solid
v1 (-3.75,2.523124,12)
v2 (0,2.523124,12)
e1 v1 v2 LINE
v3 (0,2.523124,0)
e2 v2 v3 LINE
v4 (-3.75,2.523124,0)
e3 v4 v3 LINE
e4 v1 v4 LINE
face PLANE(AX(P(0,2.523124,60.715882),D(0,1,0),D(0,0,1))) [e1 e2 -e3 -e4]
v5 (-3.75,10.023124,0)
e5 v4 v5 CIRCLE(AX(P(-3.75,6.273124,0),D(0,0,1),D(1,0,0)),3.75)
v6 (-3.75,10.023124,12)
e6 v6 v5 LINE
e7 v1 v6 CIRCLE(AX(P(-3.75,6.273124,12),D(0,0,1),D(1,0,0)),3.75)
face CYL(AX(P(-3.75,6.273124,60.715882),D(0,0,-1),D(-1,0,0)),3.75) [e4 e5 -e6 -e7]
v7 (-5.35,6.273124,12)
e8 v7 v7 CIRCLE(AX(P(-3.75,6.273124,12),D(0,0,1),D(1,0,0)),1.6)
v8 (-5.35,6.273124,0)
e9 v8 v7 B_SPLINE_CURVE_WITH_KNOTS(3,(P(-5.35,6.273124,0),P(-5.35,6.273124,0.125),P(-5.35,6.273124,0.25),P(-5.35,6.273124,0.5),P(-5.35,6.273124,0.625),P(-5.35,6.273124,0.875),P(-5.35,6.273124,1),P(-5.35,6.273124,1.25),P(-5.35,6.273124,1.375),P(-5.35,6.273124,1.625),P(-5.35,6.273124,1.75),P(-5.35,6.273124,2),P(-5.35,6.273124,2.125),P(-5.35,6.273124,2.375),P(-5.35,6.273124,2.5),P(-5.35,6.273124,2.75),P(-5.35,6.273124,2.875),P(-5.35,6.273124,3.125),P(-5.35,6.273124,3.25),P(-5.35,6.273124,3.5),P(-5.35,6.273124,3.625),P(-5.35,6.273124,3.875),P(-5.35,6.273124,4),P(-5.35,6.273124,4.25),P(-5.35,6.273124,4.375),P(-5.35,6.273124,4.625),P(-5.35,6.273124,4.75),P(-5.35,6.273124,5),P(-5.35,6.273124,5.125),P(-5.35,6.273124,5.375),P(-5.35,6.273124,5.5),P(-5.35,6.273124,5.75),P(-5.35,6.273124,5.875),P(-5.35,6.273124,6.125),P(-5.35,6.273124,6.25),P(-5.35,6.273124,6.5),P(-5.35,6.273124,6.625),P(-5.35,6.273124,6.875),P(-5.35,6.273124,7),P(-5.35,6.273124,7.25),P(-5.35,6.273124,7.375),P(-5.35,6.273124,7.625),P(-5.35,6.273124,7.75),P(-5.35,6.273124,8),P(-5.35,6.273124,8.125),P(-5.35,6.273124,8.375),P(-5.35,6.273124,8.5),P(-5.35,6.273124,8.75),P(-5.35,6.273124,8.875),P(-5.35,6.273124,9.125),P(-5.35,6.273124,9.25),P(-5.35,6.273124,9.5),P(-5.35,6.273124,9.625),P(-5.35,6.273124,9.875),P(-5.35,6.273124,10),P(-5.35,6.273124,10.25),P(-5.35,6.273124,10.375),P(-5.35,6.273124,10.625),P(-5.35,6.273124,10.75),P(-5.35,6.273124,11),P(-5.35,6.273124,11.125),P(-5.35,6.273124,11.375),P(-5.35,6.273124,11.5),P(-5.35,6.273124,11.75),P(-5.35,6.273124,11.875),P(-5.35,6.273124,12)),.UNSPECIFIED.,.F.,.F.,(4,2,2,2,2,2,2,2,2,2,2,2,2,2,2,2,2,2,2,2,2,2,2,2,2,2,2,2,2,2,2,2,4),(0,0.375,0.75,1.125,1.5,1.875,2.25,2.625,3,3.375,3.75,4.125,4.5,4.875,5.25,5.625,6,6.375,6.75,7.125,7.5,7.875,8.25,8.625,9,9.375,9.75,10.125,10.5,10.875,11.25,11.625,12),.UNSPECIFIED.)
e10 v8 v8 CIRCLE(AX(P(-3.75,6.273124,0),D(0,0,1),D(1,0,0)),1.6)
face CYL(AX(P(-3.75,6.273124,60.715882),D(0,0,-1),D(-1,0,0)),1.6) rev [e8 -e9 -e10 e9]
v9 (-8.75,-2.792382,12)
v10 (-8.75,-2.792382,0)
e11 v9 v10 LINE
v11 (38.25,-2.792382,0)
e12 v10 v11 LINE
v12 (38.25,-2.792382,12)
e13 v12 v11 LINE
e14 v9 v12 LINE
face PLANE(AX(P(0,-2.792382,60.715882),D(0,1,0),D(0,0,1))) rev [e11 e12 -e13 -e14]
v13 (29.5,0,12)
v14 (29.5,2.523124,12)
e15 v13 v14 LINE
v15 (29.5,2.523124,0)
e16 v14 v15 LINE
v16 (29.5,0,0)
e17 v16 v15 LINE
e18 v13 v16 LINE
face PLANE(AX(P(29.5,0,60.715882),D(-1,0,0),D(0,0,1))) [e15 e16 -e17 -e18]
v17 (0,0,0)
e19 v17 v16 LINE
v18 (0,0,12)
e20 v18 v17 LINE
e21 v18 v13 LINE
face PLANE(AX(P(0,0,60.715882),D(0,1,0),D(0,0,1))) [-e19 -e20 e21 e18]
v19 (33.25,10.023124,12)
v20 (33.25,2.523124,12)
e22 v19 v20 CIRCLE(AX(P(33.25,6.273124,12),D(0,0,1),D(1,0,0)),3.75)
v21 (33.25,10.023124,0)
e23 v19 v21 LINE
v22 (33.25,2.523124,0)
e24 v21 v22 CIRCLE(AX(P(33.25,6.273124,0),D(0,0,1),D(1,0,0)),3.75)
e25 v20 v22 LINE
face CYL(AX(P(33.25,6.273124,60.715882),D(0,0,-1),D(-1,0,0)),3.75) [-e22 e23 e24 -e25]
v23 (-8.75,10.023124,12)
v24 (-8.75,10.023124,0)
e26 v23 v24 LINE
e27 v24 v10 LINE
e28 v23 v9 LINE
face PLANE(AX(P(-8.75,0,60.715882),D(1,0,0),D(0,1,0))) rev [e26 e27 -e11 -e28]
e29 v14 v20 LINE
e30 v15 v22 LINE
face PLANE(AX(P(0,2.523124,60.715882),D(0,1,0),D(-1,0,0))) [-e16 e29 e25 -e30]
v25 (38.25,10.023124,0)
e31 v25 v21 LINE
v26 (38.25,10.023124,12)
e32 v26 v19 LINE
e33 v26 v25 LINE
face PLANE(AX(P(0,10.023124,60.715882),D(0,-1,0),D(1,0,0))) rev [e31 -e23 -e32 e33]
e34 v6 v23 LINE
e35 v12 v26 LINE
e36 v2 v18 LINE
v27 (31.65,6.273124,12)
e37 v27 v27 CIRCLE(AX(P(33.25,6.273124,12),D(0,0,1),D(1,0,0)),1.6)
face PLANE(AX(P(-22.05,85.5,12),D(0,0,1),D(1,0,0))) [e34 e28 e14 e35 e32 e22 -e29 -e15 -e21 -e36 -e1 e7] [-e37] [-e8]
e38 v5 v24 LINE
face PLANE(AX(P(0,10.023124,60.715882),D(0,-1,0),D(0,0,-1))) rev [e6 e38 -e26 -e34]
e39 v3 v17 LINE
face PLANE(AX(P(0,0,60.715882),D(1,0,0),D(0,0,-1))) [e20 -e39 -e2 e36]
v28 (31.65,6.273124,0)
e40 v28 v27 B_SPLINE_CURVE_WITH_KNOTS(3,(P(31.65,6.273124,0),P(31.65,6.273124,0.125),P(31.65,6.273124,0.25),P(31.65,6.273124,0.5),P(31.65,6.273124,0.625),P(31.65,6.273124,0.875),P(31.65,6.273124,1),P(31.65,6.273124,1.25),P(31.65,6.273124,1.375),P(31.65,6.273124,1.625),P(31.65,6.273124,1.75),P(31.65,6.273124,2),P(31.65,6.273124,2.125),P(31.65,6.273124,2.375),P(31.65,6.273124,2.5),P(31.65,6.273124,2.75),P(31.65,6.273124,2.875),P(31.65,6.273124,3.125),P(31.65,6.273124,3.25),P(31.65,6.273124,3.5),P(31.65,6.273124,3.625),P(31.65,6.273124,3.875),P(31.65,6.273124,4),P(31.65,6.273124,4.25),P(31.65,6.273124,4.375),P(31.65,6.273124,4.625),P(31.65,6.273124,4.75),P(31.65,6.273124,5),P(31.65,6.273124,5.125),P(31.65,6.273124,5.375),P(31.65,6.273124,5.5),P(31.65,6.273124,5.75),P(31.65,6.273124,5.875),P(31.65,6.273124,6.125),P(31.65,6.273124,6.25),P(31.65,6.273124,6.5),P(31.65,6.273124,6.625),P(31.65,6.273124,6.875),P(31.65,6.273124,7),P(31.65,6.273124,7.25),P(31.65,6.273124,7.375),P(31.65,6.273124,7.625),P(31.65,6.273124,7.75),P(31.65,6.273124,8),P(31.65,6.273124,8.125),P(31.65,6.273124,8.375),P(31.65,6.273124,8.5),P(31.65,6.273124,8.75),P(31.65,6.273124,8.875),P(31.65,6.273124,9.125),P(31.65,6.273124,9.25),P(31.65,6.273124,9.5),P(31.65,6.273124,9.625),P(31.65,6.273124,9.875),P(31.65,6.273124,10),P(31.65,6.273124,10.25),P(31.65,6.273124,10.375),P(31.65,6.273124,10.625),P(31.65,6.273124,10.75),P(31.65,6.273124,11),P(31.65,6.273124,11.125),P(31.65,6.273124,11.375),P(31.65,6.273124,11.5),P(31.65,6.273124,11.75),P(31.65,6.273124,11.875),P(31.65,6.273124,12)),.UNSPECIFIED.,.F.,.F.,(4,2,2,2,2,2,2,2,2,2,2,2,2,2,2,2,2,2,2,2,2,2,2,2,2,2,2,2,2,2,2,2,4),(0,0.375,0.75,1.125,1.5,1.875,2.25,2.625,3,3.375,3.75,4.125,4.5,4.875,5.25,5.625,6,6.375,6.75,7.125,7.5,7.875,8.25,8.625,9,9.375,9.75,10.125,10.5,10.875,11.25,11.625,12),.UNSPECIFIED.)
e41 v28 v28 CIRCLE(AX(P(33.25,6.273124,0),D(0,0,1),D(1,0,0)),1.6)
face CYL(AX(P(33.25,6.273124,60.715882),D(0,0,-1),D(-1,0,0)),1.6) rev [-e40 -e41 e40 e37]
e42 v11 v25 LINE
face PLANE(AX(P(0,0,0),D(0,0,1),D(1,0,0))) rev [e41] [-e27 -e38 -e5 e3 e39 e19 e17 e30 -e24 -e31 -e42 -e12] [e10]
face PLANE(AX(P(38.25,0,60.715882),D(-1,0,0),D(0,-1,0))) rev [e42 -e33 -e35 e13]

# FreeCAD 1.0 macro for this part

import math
import FreeCAD as App
import Part
import Sketcher
from FreeCAD import Vector

doc = App.newDocument("Part")
params = doc.addObject("Spreadsheet::Sheet", "Params")
for row, (alias, value) in enumerate([
    ("sketch1_diameter", "3.2 mm"),
    ("sketch1_width", "5 mm"),
    ("sketch1_width2", "47 mm"),
    ("sketch1_radius", "3.75 mm"),
    ("sketch1_width3", "29.5 mm"),
    ("pad1_length", "12 mm"),
], start=1):
    params.set(f"A{row}", alias)
    params.set(f"B{row}", "=" + value)
    params.setAlias(f"B{row}", alias)

body = doc.addObject("PartDesign::Body", "Body")

sketch1 = doc.addObject("Sketcher::SketchObject", "Sketch")
body.addObject(sketch1)
sketch1.AttachmentSupport = (doc.XY_Plane, [""])
sketch1.MapMode = "FlatFace"
sketch1.addGeometry([
    Part.ArcOfCircle(Part.Circle(Vector(-3.8, 6.3, 0), Vector(0, 0, 1), 3.8), math.radians(-90), math.radians(90)),
    Part.LineSegment(Vector(-3.8, 10, 0), Vector(-8.8, 10, 0)),
    Part.LineSegment(Vector(-8.8, 10, 0), Vector(-8.8, -2.8, 0)),
    Part.LineSegment(Vector(-8.8, -2.8, 0), Vector(38.2, -2.8, 0)),
    Part.LineSegment(Vector(38.2, -2.8, 0), Vector(38.2, 10, 0)),
    Part.LineSegment(Vector(38.2, 10, 0), Vector(33.2, 10, 0)),
    Part.ArcOfCircle(Part.Circle(Vector(33.2, 6.3, 0), Vector(0, 0, 1), 3.8), math.radians(90), math.radians(270)),
    Part.LineSegment(Vector(33.2, 2.5, 0), Vector(29.5, 2.5, 0)),
    Part.LineSegment(Vector(29.5, 2.5, 0), Vector(29.5, 0, 0)),
    Part.LineSegment(Vector(29.5, 0, 0), Vector(0, 0, 0)),
    Part.LineSegment(Vector(0, 0, 0), Vector(0, 2.5, 0)),
    Part.LineSegment(Vector(0, 2.5, 0), Vector(-3.8, 2.5, 0)),
    Part.Circle(Vector(-3.8, 6.3, 0), Vector(0, 0, 1), 1.6),
    Part.Circle(Vector(33.2, 6.3, 0), Vector(0, 0, 1), 1.6),
], False)
sketch1.addConstraint([
    Sketcher.Constraint("Tangent", 0, 2, 1, 1),
    Sketcher.Constraint("Coincident", 1, 2, 2, 1),
    Sketcher.Constraint("Coincident", 2, 2, 3, 1),
    Sketcher.Constraint("Coincident", 3, 2, 4, 1),
    Sketcher.Constraint("Coincident", 4, 2, 5, 1),
    Sketcher.Constraint("Tangent", 5, 2, 6, 1),
    Sketcher.Constraint("Tangent", 6, 2, 7, 1),
    Sketcher.Constraint("Coincident", 7, 2, 8, 1),
    Sketcher.Constraint("Coincident", 8, 2, 9, 1),
    Sketcher.Constraint("Coincident", 9, 2, 10, 1),
    Sketcher.Constraint("Coincident", 10, 2, 11, 1),
    Sketcher.Constraint("Tangent", 11, 2, 0, 1),
    Sketcher.Constraint("Horizontal", 1),
    Sketcher.Constraint("Vertical", 2),
    Sketcher.Constraint("Horizontal", 3),
    Sketcher.Constraint("Vertical", 4),
    Sketcher.Constraint("Horizontal", 5),
    Sketcher.Constraint("Horizontal", 7),
    Sketcher.Constraint("Vertical", 8),
    Sketcher.Constraint("Horizontal", 9),
    Sketcher.Constraint("Vertical", 10),
    Sketcher.Constraint("Horizontal", 11),
    Sketcher.Constraint("Coincident", 9, 2, -1, 1),
    Sketcher.Constraint("Coincident", 12, 3, 0, 3),
    Sketcher.Constraint("Coincident", 13, 3, 6, 3),
    Sketcher.Constraint("Equal", 0, 6),
    Sketcher.Constraint("Equal", 12, 13),
    Sketcher.Constraint("Horizontal", 0, 3, 6, 3),
    Sketcher.Constraint("Equal", 1, 5),
    Sketcher.Constraint("Equal", 7, 11),
    Sketcher.Constraint("Diameter", 12, 3.2),
    Sketcher.Constraint("DistanceX", 1, 2, 1, 1, 5.0),
    Sketcher.Constraint("DistanceX", 3, 1, 3, 2, 47.0),
    Sketcher.Constraint("Radius", 0, 3.75),
    Sketcher.Constraint("DistanceX", 9, 2, 9, 1, 29.5),
    Sketcher.Constraint("DistanceY", 2, 2, 2, 1, 12.815506),
    Sketcher.Constraint("DistanceY", 8, 2, 8, 1, 2.523124),
])
sketch1.setExpression("Constraints[30]", "Params.sketch1_diameter")
sketch1.setExpression("Constraints[31]", "Params.sketch1_width")
sketch1.setExpression("Constraints[32]", "Params.sketch1_width2")
sketch1.setExpression("Constraints[33]", "Params.sketch1_radius")
sketch1.setExpression("Constraints[34]", "Params.sketch1_width3")
pad1 = doc.addObject("PartDesign::Pad", "Pad")
body.addObject(pad1)
pad1.Profile = sketch1
pad1.setExpression("Length", "Params.pad1_length")

doc.recompute()
